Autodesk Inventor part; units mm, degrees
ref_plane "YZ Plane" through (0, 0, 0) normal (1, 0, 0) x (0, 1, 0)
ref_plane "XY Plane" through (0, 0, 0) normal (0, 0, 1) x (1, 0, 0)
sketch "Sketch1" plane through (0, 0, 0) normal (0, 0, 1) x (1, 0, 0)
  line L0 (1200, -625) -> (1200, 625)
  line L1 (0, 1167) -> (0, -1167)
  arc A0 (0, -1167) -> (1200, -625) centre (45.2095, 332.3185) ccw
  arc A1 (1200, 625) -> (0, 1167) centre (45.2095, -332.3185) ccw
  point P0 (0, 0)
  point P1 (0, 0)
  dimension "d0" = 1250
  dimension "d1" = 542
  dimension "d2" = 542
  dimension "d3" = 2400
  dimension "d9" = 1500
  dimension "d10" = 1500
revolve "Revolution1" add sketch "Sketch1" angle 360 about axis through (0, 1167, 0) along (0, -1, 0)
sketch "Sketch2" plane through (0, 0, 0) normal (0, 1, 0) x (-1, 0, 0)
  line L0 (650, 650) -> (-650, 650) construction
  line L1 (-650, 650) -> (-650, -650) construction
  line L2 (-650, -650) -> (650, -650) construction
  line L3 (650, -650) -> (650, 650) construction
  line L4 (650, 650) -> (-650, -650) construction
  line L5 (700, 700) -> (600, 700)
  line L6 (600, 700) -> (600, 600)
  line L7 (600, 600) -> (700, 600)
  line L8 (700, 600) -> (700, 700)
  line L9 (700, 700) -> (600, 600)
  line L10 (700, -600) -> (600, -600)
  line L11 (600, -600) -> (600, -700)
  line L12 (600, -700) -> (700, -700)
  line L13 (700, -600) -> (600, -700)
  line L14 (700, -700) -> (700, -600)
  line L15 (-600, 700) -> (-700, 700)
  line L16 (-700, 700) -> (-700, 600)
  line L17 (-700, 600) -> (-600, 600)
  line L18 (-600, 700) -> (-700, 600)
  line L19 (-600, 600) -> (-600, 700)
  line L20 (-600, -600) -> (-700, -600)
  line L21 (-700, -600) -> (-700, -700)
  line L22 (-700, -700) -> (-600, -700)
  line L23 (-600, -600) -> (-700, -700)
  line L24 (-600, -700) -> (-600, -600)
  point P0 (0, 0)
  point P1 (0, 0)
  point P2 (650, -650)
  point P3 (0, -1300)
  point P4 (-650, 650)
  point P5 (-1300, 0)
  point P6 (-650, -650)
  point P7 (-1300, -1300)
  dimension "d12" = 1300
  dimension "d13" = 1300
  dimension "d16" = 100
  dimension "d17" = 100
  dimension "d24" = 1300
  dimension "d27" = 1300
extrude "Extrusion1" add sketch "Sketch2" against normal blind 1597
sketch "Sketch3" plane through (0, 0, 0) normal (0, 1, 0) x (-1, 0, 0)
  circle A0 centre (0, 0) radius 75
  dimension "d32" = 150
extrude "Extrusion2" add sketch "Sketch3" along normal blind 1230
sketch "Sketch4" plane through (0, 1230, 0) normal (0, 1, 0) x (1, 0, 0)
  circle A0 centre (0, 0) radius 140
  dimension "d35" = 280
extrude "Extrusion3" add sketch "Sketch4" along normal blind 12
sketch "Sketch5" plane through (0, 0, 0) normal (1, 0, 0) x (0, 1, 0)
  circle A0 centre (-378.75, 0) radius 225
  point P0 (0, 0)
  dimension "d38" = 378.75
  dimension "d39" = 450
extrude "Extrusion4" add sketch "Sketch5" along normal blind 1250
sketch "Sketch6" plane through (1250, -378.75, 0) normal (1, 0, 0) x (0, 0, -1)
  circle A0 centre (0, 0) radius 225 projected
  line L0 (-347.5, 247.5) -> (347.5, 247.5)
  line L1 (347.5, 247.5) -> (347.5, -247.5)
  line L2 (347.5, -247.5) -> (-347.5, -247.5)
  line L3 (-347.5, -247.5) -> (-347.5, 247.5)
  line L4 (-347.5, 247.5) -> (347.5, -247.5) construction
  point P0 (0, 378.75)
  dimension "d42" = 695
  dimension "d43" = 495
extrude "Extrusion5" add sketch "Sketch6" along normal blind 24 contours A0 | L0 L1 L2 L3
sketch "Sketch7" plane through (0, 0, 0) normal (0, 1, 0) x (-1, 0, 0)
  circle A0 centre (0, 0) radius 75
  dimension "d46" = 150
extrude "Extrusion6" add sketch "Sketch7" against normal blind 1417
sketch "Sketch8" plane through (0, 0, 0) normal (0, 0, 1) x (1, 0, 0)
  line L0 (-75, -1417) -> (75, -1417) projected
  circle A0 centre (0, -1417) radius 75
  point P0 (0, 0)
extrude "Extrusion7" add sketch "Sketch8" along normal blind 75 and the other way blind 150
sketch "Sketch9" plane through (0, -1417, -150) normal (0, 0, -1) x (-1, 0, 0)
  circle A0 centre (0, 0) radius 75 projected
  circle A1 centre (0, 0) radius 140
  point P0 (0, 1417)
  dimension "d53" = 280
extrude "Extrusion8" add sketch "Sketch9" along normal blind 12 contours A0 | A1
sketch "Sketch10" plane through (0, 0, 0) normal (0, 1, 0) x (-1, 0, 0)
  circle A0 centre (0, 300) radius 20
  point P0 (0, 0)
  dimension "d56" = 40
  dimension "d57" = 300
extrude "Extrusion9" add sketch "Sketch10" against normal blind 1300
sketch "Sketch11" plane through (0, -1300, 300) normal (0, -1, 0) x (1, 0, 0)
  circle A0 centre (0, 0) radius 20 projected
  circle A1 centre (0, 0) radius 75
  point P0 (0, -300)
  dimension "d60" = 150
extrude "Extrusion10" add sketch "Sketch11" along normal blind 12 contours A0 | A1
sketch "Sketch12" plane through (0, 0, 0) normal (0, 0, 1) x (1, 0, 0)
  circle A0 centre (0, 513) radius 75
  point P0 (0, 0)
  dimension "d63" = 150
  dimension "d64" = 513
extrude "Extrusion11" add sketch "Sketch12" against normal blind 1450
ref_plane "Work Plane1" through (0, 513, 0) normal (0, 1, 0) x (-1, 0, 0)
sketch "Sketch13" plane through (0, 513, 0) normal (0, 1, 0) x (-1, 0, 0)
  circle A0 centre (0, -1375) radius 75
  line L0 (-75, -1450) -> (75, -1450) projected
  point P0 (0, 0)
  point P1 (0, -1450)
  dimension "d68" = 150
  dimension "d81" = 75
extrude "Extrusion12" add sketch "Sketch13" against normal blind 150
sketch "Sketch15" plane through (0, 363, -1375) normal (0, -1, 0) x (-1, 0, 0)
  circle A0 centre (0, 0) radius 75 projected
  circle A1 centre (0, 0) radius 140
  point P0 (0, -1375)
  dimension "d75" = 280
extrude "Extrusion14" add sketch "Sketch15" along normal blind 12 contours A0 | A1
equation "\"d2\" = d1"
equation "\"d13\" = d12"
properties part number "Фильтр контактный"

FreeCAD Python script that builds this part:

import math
import FreeCAD as App
import Part
import Sketcher

V = App.Vector
Q = App.Units.Quantity

doc = App.newDocument("Part")
body = doc.addObject("PartDesign::Body", "Body")

sketch1 = doc.addObject("Sketcher::SketchObject", "Sketch")
body.addObject(sketch1)
sketch1.AttachmentSupport = (doc.XY_Plane, [""])
sketch1.MapMode = "FlatFace"
sketch1.addGeometry([
    Part.ArcOfCircle(Part.Circle(V(45, 332, 0), V(0, 0, 1), 1500), math.radians(-92), math.radians(-40)),
    Part.LineSegment(V(1200, -625, 0), V(1200, 625, 0)),
    Part.ArcOfCircle(Part.Circle(V(45, -332, 0), V(0, 0, 1), 1500), math.radians(40), math.radians(92)),
    Part.LineSegment(V(0, 1167, 0), V(0, -1167, 0)),
], False)
sketch1.addConstraint([
    Sketcher.Constraint("Coincident", 0, 2, 1, 1),
    Sketcher.Constraint("Coincident", 1, 2, 2, 1),
    Sketcher.Constraint("Coincident", 2, 2, 3, 1),
    Sketcher.Constraint("Coincident", 3, 2, 0, 1),
    Sketcher.Constraint("Vertical", 1),
    Sketcher.Constraint("Vertical", 3),
    Sketcher.Constraint("Equal", 0, 2),
    Sketcher.Constraint("Symmetric", 0, 3, 2, 3, -1),
    Sketcher.Constraint("PointOnObject", 3, 2, -2),
    Sketcher.Constraint("Radius", 0, Q("1500 mm")),
    Sketcher.Constraint("DistanceY", 1, 1, 1, 2, Q("1250 mm")),
    Sketcher.Constraint("DistanceY", 1, 2, 2, 2, Q("542 mm")),
    Sketcher.Constraint("DistanceX", -1, 1, 1, 2, Q("1200 mm")),
])
revolution = doc.addObject("PartDesign::Revolution", "Revolution")
body.addObject(revolution)
revolution.Profile = sketch1
revolution.ReferenceAxis = (sketch1, ["V_Axis"])
revolution.Angle = 360

sketch2 = doc.addObject("Sketcher::SketchObject", "Sketch001")
body.addObject(sketch2)
sketch2.AttachmentSupport = (doc.XZ_Plane, [""])
sketch2.MapMode = "FlatFace"
sketch2.addGeometry([
    Part.LineSegment(V(-600, 700, 0), V(-600, 600, 0)),
    Part.LineSegment(V(-600, 600, 0), V(-700, 600, 0)),
    Part.LineSegment(V(-700, 600, 0), V(-700, 700, 0)),
    Part.LineSegment(V(-700, 700, 0), V(-600, 700, 0)),
    Part.LineSegment(V(-600, -600, 0), V(-600, -700, 0)),
    Part.LineSegment(V(-600, -700, 0), V(-700, -700, 0)),
    Part.LineSegment(V(-700, -700, 0), V(-700, -600, 0)),
    Part.LineSegment(V(-700, -600, 0), V(-600, -600, 0)),
    Part.LineSegment(V(700, 700, 0), V(700, 600, 0)),
    Part.LineSegment(V(700, 600, 0), V(600, 600, 0)),
    Part.LineSegment(V(600, 600, 0), V(600, 700, 0)),
    Part.LineSegment(V(600, 700, 0), V(700, 700, 0)),
    Part.LineSegment(V(700, -600, 0), V(700, -700, 0)),
    Part.LineSegment(V(700, -700, 0), V(600, -700, 0)),
    Part.LineSegment(V(600, -700, 0), V(600, -600, 0)),
    Part.LineSegment(V(600, -600, 0), V(700, -600, 0)),
], False)
sketch2.addConstraint([
    Sketcher.Constraint("Coincident", 0, 2, 1, 1),
    Sketcher.Constraint("Coincident", 1, 2, 2, 1),
    Sketcher.Constraint("Coincident", 2, 2, 3, 1),
    Sketcher.Constraint("Coincident", 3, 2, 0, 1),
    Sketcher.Constraint("Coincident", 4, 2, 5, 1),
    Sketcher.Constraint("Coincident", 5, 2, 6, 1),
    Sketcher.Constraint("Coincident", 6, 2, 7, 1),
    Sketcher.Constraint("Coincident", 7, 2, 4, 1),
    Sketcher.Constraint("Coincident", 8, 2, 9, 1),
    Sketcher.Constraint("Coincident", 9, 2, 10, 1),
    Sketcher.Constraint("Coincident", 10, 2, 11, 1),
    Sketcher.Constraint("Coincident", 11, 2, 8, 1),
    Sketcher.Constraint("Coincident", 12, 2, 13, 1),
    Sketcher.Constraint("Coincident", 13, 2, 14, 1),
    Sketcher.Constraint("Coincident", 14, 2, 15, 1),
    Sketcher.Constraint("Coincident", 15, 2, 12, 1),
    Sketcher.Constraint("Vertical", 0),
    Sketcher.Constraint("Horizontal", 1),
    Sketcher.Constraint("Vertical", 2),
    Sketcher.Constraint("Horizontal", 3),
    Sketcher.Constraint("Vertical", 4),
    Sketcher.Constraint("Horizontal", 5),
    Sketcher.Constraint("Vertical", 6),
    Sketcher.Constraint("Horizontal", 7),
    Sketcher.Constraint("Vertical", 8),
    Sketcher.Constraint("Horizontal", 9),
    Sketcher.Constraint("Vertical", 10),
    Sketcher.Constraint("Horizontal", 11),
    Sketcher.Constraint("Vertical", 12),
    Sketcher.Constraint("Horizontal", 13),
    Sketcher.Constraint("Vertical", 14),
    Sketcher.Constraint("Horizontal", 15),
    Sketcher.Constraint("Symmetric", 6, 2, 8, 2, -1, 1),
    Sketcher.Constraint("Symmetric", 4, 2, 10, 2, -1, 1),
    Sketcher.Constraint("Symmetric", 2, 2, 12, 2, -1, 1),
    Sketcher.Constraint("Symmetric", 0, 2, 14, 2, -1, 1),
    Sketcher.Constraint("Symmetric", 1, 2, 8, 2, -2),
    Sketcher.Constraint("Symmetric", 3, 2, 10, 2, -2),
    Sketcher.Constraint("Equal", 15, 0),
    Sketcher.Constraint("DistanceX", 1, 2, 1, 1, Q("100 mm")),
    Sketcher.Constraint("DistanceY", 4, 2, 0, 2, Q("1300 mm")),
    Sketcher.Constraint("DistanceX", 0, 2, 8, 2, Q("1300 mm")),
])
pad1 = doc.addObject("PartDesign::Pad", "Pad")
body.addObject(pad1)
pad1.Profile = sketch2
pad1.Length = 1597

sketch3 = doc.addObject("Sketcher::SketchObject", "Sketch002")
body.addObject(sketch3)
sketch3.AttachmentSupport = (doc.XZ_Plane, [""])
sketch3.MapMode = "FlatFace"
sketch3.addGeometry(Part.Circle(V(0, 0, 0), V(0, 0, 1), 75), False)
sketch3.addConstraint([
    Sketcher.Constraint("Coincident", 0, 3, -1, 1),
    Sketcher.Constraint("Diameter", 0, Q("150 mm")),
])
pad2 = doc.addObject("PartDesign::Pad", "Pad001")
body.addObject(pad2)
pad2.Profile = sketch3
pad2.Length = 1230
pad2.Reversed = True

sketch4 = doc.addObject("Sketcher::SketchObject", "Sketch003")
body.addObject(sketch4)
sketch4.AttachmentSupport = (doc.XZ_Plane, [""])
sketch4.MapMode = "FlatFace"
sketch4.AttachmentOffset = App.Placement(V(0, 0, -1230), App.Rotation())
sketch4.addGeometry(Part.Circle(V(0, 0, 0), V(0, 0, 1), 140), False)
sketch4.addConstraint([
    Sketcher.Constraint("Coincident", 0, 3, -1, 1),
    Sketcher.Constraint("Diameter", 0, Q("280 mm")),
])
pad3 = doc.addObject("PartDesign::Pad", "Pad002")
body.addObject(pad3)
pad3.Profile = sketch4
pad3.Length = 12
pad3.Reversed = True

sketch5 = doc.addObject("Sketcher::SketchObject", "Sketch004")
body.addObject(sketch5)
sketch5.AttachmentSupport = (doc.YZ_Plane, [""])
sketch5.MapMode = "FlatFace"
sketch5.addGeometry(Part.Circle(V(-379, 0, 0), V(0, 0, 1), 225), False)
sketch5.addConstraint([
    Sketcher.Constraint("PointOnObject", 0, 3, -1),
    Sketcher.Constraint("Diameter", 0, Q("450 mm")),
    Sketcher.Constraint("DistanceX", 0, 3, -1, 1, Q("378.75 mm")),
])
pad4 = doc.addObject("PartDesign::Pad", "Pad003")
body.addObject(pad4)
pad4.Profile = sketch5
pad4.Length = 1250

sketch6 = doc.addObject("Sketcher::SketchObject", "Sketch005")
body.addObject(sketch6)
sketch6.AttachmentSupport = (doc.YZ_Plane, [""])
sketch6.MapMode = "FlatFace"
sketch6.AttachmentOffset = App.Placement(V(0, 0, 1250), App.Rotation())
sketch6.addGeometry([
    Part.LineSegment(V(-131, -348, 0), V(-131, 348, 0)),
    Part.LineSegment(V(-131, 348, 0), V(-626, 348, 0)),
    Part.LineSegment(V(-626, 348, 0), V(-626, -348, 0)),
    Part.LineSegment(V(-626, -348, 0), V(-131, -348, 0)),
], False)
sketch6.addConstraint([
    Sketcher.Constraint("Coincident", 0, 2, 1, 1),
    Sketcher.Constraint("Coincident", 1, 2, 2, 1),
    Sketcher.Constraint("Coincident", 2, 2, 3, 1),
    Sketcher.Constraint("Coincident", 3, 2, 0, 1),
    Sketcher.Constraint("Vertical", 0),
    Sketcher.Constraint("Horizontal", 1),
    Sketcher.Constraint("Vertical", 2),
    Sketcher.Constraint("Horizontal", 3),
    Sketcher.Constraint("DistanceX", 1, 2, 1, 1, Q("495 mm")),
    Sketcher.Constraint("DistanceY", 0, 1, 0, 2, Q("695 mm")),
    Sketcher.Constraint("DistanceY", -1, 1, 0, 2, Q("347.5 mm")),
    Sketcher.Constraint("DistanceX", 0, 2, -1, 1, Q("131.25 mm")),
])
pad5 = doc.addObject("PartDesign::Pad", "Pad004")
body.addObject(pad5)
pad5.Profile = sketch6
pad5.Length = 24

sketch7 = doc.addObject("Sketcher::SketchObject", "Sketch006")
body.addObject(sketch7)
sketch7.AttachmentSupport = (doc.XZ_Plane, [""])
sketch7.MapMode = "FlatFace"
sketch7.addGeometry(Part.Circle(V(0, 0, 0), V(0, 0, 1), 75), False)
sketch7.addConstraint([
    Sketcher.Constraint("Coincident", 0, 3, -1, 1),
    Sketcher.Constraint("Diameter", 0, Q("150 mm")),
])
pad6 = doc.addObject("PartDesign::Pad", "Pad005")
body.addObject(pad6)
pad6.Profile = sketch7
pad6.Length = 1417

sketch8 = doc.addObject("Sketcher::SketchObject", "Sketch007")
body.addObject(sketch8)
sketch8.AttachmentSupport = (doc.XY_Plane, [""])
sketch8.MapMode = "FlatFace"
sketch8.addGeometry(Part.Circle(V(0, -1417, 0), V(0, 0, 1), 75), False)
sketch8.addConstraint([
    Sketcher.Constraint("PointOnObject", 0, 3, -2),
    Sketcher.Constraint("Diameter", 0, Q("150 mm")),
    Sketcher.Constraint("DistanceY", 0, 3, -1, 1, Q("1417 mm")),
])
pad7 = doc.addObject("PartDesign::Pad", "Pad006")
body.addObject(pad7)
pad7.Profile = sketch8
pad7.Type = "TwoLengths"
pad7.Length = 75
pad7.Length2 = 150

sketch9 = doc.addObject("Sketcher::SketchObject", "Sketch008")
body.addObject(sketch9)
sketch9.AttachmentSupport = (doc.XY_Plane, [""])
sketch9.MapMode = "FlatFace"
sketch9.AttachmentOffset = App.Placement(V(0, 0, -150), App.Rotation())
sketch9.addGeometry(Part.Circle(V(0, -1417, 0), V(0, 0, 1), 140), False)
sketch9.addConstraint([
    Sketcher.Constraint("PointOnObject", 0, 3, -2),
    Sketcher.Constraint("Diameter", 0, Q("280 mm")),
    Sketcher.Constraint("DistanceY", 0, 3, -1, 1, Q("1417 mm")),
])
pad8 = doc.addObject("PartDesign::Pad", "Pad007")
body.addObject(pad8)
pad8.Profile = sketch9
pad8.Length = 12
pad8.Reversed = True

sketch10 = doc.addObject("Sketcher::SketchObject", "Sketch009")
body.addObject(sketch10)
sketch10.AttachmentSupport = (doc.XZ_Plane, [""])
sketch10.MapMode = "FlatFace"
sketch10.addGeometry(Part.Circle(V(0, 300, 0), V(0, 0, 1), 20), False)
sketch10.addConstraint([
    Sketcher.Constraint("PointOnObject", 0, 3, -2),
    Sketcher.Constraint("Diameter", 0, Q("40 mm")),
    Sketcher.Constraint("DistanceY", -1, 1, 0, 3, Q("300 mm")),
])
pad9 = doc.addObject("PartDesign::Pad", "Pad008")
body.addObject(pad9)
pad9.Profile = sketch10
pad9.Length = 1300

sketch11 = doc.addObject("Sketcher::SketchObject", "Sketch010")
body.addObject(sketch11)
sketch11.AttachmentSupport = (doc.XZ_Plane, [""])
sketch11.MapMode = "FlatFace"
sketch11.AttachmentOffset = App.Placement(V(0, 0, 1300), App.Rotation())
sketch11.addGeometry(Part.Circle(V(0, 300, 0), V(0, 0, 1), 75), False)
sketch11.addConstraint([
    Sketcher.Constraint("PointOnObject", 0, 3, -2),
    Sketcher.Constraint("Diameter", 0, Q("150 mm")),
    Sketcher.Constraint("DistanceY", -1, 1, 0, 3, Q("300 mm")),
])
pad10 = doc.addObject("PartDesign::Pad", "Pad009")
body.addObject(pad10)
pad10.Profile = sketch11
pad10.Length = 12

sketch12 = doc.addObject("Sketcher::SketchObject", "Sketch011")
body.addObject(sketch12)
sketch12.AttachmentSupport = (doc.XY_Plane, [""])
sketch12.MapMode = "FlatFace"
sketch12.addGeometry(Part.Circle(V(0, 513, 0), V(0, 0, 1), 75), False)
sketch12.addConstraint([
    Sketcher.Constraint("PointOnObject", 0, 3, -2),
    Sketcher.Constraint("Diameter", 0, Q("150 mm")),
    Sketcher.Constraint("DistanceY", -1, 1, 0, 3, Q("513 mm")),
])
pad11 = doc.addObject("PartDesign::Pad", "Pad010")
body.addObject(pad11)
pad11.Profile = sketch12
pad11.Length = 1450
pad11.Reversed = True

sketch13 = doc.addObject("Sketcher::SketchObject", "Sketch012")
body.addObject(sketch13)
sketch13.AttachmentSupport = (doc.XZ_Plane, [""])
sketch13.MapMode = "FlatFace"
sketch13.AttachmentOffset = App.Placement(V(0, 0, -513), App.Rotation())
sketch13.addGeometry(Part.Circle(V(0, -1375, 0), V(0, 0, 1), 75), False)
sketch13.addConstraint([
    Sketcher.Constraint("PointOnObject", 0, 3, -2),
    Sketcher.Constraint("Diameter", 0, Q("150 mm")),
    Sketcher.Constraint("DistanceY", 0, 3, -1, 1, Q("1375 mm")),
])
pad12 = doc.addObject("PartDesign::Pad", "Pad011")
body.addObject(pad12)
pad12.Profile = sketch13
pad12.Length = 150

sketch14 = doc.addObject("Sketcher::SketchObject", "Sketch013")
body.addObject(sketch14)
sketch14.AttachmentSupport = (doc.XZ_Plane, [""])
sketch14.MapMode = "FlatFace"
sketch14.AttachmentOffset = App.Placement(V(0, 0, -363), App.Rotation())
sketch14.addGeometry(Part.Circle(V(0, -1375, 0), V(0, 0, 1), 140), False)
sketch14.addConstraint([
    Sketcher.Constraint("PointOnObject", 0, 3, -2),
    Sketcher.Constraint("Diameter", 0, Q("280 mm")),
    Sketcher.Constraint("DistanceY", 0, 3, -1, 1, Q("1375 mm")),
])
pad13 = doc.addObject("PartDesign::Pad", "Pad012")
body.addObject(pad13)
pad13.Profile = sketch14
pad13.Length = 12

doc.recompute()
